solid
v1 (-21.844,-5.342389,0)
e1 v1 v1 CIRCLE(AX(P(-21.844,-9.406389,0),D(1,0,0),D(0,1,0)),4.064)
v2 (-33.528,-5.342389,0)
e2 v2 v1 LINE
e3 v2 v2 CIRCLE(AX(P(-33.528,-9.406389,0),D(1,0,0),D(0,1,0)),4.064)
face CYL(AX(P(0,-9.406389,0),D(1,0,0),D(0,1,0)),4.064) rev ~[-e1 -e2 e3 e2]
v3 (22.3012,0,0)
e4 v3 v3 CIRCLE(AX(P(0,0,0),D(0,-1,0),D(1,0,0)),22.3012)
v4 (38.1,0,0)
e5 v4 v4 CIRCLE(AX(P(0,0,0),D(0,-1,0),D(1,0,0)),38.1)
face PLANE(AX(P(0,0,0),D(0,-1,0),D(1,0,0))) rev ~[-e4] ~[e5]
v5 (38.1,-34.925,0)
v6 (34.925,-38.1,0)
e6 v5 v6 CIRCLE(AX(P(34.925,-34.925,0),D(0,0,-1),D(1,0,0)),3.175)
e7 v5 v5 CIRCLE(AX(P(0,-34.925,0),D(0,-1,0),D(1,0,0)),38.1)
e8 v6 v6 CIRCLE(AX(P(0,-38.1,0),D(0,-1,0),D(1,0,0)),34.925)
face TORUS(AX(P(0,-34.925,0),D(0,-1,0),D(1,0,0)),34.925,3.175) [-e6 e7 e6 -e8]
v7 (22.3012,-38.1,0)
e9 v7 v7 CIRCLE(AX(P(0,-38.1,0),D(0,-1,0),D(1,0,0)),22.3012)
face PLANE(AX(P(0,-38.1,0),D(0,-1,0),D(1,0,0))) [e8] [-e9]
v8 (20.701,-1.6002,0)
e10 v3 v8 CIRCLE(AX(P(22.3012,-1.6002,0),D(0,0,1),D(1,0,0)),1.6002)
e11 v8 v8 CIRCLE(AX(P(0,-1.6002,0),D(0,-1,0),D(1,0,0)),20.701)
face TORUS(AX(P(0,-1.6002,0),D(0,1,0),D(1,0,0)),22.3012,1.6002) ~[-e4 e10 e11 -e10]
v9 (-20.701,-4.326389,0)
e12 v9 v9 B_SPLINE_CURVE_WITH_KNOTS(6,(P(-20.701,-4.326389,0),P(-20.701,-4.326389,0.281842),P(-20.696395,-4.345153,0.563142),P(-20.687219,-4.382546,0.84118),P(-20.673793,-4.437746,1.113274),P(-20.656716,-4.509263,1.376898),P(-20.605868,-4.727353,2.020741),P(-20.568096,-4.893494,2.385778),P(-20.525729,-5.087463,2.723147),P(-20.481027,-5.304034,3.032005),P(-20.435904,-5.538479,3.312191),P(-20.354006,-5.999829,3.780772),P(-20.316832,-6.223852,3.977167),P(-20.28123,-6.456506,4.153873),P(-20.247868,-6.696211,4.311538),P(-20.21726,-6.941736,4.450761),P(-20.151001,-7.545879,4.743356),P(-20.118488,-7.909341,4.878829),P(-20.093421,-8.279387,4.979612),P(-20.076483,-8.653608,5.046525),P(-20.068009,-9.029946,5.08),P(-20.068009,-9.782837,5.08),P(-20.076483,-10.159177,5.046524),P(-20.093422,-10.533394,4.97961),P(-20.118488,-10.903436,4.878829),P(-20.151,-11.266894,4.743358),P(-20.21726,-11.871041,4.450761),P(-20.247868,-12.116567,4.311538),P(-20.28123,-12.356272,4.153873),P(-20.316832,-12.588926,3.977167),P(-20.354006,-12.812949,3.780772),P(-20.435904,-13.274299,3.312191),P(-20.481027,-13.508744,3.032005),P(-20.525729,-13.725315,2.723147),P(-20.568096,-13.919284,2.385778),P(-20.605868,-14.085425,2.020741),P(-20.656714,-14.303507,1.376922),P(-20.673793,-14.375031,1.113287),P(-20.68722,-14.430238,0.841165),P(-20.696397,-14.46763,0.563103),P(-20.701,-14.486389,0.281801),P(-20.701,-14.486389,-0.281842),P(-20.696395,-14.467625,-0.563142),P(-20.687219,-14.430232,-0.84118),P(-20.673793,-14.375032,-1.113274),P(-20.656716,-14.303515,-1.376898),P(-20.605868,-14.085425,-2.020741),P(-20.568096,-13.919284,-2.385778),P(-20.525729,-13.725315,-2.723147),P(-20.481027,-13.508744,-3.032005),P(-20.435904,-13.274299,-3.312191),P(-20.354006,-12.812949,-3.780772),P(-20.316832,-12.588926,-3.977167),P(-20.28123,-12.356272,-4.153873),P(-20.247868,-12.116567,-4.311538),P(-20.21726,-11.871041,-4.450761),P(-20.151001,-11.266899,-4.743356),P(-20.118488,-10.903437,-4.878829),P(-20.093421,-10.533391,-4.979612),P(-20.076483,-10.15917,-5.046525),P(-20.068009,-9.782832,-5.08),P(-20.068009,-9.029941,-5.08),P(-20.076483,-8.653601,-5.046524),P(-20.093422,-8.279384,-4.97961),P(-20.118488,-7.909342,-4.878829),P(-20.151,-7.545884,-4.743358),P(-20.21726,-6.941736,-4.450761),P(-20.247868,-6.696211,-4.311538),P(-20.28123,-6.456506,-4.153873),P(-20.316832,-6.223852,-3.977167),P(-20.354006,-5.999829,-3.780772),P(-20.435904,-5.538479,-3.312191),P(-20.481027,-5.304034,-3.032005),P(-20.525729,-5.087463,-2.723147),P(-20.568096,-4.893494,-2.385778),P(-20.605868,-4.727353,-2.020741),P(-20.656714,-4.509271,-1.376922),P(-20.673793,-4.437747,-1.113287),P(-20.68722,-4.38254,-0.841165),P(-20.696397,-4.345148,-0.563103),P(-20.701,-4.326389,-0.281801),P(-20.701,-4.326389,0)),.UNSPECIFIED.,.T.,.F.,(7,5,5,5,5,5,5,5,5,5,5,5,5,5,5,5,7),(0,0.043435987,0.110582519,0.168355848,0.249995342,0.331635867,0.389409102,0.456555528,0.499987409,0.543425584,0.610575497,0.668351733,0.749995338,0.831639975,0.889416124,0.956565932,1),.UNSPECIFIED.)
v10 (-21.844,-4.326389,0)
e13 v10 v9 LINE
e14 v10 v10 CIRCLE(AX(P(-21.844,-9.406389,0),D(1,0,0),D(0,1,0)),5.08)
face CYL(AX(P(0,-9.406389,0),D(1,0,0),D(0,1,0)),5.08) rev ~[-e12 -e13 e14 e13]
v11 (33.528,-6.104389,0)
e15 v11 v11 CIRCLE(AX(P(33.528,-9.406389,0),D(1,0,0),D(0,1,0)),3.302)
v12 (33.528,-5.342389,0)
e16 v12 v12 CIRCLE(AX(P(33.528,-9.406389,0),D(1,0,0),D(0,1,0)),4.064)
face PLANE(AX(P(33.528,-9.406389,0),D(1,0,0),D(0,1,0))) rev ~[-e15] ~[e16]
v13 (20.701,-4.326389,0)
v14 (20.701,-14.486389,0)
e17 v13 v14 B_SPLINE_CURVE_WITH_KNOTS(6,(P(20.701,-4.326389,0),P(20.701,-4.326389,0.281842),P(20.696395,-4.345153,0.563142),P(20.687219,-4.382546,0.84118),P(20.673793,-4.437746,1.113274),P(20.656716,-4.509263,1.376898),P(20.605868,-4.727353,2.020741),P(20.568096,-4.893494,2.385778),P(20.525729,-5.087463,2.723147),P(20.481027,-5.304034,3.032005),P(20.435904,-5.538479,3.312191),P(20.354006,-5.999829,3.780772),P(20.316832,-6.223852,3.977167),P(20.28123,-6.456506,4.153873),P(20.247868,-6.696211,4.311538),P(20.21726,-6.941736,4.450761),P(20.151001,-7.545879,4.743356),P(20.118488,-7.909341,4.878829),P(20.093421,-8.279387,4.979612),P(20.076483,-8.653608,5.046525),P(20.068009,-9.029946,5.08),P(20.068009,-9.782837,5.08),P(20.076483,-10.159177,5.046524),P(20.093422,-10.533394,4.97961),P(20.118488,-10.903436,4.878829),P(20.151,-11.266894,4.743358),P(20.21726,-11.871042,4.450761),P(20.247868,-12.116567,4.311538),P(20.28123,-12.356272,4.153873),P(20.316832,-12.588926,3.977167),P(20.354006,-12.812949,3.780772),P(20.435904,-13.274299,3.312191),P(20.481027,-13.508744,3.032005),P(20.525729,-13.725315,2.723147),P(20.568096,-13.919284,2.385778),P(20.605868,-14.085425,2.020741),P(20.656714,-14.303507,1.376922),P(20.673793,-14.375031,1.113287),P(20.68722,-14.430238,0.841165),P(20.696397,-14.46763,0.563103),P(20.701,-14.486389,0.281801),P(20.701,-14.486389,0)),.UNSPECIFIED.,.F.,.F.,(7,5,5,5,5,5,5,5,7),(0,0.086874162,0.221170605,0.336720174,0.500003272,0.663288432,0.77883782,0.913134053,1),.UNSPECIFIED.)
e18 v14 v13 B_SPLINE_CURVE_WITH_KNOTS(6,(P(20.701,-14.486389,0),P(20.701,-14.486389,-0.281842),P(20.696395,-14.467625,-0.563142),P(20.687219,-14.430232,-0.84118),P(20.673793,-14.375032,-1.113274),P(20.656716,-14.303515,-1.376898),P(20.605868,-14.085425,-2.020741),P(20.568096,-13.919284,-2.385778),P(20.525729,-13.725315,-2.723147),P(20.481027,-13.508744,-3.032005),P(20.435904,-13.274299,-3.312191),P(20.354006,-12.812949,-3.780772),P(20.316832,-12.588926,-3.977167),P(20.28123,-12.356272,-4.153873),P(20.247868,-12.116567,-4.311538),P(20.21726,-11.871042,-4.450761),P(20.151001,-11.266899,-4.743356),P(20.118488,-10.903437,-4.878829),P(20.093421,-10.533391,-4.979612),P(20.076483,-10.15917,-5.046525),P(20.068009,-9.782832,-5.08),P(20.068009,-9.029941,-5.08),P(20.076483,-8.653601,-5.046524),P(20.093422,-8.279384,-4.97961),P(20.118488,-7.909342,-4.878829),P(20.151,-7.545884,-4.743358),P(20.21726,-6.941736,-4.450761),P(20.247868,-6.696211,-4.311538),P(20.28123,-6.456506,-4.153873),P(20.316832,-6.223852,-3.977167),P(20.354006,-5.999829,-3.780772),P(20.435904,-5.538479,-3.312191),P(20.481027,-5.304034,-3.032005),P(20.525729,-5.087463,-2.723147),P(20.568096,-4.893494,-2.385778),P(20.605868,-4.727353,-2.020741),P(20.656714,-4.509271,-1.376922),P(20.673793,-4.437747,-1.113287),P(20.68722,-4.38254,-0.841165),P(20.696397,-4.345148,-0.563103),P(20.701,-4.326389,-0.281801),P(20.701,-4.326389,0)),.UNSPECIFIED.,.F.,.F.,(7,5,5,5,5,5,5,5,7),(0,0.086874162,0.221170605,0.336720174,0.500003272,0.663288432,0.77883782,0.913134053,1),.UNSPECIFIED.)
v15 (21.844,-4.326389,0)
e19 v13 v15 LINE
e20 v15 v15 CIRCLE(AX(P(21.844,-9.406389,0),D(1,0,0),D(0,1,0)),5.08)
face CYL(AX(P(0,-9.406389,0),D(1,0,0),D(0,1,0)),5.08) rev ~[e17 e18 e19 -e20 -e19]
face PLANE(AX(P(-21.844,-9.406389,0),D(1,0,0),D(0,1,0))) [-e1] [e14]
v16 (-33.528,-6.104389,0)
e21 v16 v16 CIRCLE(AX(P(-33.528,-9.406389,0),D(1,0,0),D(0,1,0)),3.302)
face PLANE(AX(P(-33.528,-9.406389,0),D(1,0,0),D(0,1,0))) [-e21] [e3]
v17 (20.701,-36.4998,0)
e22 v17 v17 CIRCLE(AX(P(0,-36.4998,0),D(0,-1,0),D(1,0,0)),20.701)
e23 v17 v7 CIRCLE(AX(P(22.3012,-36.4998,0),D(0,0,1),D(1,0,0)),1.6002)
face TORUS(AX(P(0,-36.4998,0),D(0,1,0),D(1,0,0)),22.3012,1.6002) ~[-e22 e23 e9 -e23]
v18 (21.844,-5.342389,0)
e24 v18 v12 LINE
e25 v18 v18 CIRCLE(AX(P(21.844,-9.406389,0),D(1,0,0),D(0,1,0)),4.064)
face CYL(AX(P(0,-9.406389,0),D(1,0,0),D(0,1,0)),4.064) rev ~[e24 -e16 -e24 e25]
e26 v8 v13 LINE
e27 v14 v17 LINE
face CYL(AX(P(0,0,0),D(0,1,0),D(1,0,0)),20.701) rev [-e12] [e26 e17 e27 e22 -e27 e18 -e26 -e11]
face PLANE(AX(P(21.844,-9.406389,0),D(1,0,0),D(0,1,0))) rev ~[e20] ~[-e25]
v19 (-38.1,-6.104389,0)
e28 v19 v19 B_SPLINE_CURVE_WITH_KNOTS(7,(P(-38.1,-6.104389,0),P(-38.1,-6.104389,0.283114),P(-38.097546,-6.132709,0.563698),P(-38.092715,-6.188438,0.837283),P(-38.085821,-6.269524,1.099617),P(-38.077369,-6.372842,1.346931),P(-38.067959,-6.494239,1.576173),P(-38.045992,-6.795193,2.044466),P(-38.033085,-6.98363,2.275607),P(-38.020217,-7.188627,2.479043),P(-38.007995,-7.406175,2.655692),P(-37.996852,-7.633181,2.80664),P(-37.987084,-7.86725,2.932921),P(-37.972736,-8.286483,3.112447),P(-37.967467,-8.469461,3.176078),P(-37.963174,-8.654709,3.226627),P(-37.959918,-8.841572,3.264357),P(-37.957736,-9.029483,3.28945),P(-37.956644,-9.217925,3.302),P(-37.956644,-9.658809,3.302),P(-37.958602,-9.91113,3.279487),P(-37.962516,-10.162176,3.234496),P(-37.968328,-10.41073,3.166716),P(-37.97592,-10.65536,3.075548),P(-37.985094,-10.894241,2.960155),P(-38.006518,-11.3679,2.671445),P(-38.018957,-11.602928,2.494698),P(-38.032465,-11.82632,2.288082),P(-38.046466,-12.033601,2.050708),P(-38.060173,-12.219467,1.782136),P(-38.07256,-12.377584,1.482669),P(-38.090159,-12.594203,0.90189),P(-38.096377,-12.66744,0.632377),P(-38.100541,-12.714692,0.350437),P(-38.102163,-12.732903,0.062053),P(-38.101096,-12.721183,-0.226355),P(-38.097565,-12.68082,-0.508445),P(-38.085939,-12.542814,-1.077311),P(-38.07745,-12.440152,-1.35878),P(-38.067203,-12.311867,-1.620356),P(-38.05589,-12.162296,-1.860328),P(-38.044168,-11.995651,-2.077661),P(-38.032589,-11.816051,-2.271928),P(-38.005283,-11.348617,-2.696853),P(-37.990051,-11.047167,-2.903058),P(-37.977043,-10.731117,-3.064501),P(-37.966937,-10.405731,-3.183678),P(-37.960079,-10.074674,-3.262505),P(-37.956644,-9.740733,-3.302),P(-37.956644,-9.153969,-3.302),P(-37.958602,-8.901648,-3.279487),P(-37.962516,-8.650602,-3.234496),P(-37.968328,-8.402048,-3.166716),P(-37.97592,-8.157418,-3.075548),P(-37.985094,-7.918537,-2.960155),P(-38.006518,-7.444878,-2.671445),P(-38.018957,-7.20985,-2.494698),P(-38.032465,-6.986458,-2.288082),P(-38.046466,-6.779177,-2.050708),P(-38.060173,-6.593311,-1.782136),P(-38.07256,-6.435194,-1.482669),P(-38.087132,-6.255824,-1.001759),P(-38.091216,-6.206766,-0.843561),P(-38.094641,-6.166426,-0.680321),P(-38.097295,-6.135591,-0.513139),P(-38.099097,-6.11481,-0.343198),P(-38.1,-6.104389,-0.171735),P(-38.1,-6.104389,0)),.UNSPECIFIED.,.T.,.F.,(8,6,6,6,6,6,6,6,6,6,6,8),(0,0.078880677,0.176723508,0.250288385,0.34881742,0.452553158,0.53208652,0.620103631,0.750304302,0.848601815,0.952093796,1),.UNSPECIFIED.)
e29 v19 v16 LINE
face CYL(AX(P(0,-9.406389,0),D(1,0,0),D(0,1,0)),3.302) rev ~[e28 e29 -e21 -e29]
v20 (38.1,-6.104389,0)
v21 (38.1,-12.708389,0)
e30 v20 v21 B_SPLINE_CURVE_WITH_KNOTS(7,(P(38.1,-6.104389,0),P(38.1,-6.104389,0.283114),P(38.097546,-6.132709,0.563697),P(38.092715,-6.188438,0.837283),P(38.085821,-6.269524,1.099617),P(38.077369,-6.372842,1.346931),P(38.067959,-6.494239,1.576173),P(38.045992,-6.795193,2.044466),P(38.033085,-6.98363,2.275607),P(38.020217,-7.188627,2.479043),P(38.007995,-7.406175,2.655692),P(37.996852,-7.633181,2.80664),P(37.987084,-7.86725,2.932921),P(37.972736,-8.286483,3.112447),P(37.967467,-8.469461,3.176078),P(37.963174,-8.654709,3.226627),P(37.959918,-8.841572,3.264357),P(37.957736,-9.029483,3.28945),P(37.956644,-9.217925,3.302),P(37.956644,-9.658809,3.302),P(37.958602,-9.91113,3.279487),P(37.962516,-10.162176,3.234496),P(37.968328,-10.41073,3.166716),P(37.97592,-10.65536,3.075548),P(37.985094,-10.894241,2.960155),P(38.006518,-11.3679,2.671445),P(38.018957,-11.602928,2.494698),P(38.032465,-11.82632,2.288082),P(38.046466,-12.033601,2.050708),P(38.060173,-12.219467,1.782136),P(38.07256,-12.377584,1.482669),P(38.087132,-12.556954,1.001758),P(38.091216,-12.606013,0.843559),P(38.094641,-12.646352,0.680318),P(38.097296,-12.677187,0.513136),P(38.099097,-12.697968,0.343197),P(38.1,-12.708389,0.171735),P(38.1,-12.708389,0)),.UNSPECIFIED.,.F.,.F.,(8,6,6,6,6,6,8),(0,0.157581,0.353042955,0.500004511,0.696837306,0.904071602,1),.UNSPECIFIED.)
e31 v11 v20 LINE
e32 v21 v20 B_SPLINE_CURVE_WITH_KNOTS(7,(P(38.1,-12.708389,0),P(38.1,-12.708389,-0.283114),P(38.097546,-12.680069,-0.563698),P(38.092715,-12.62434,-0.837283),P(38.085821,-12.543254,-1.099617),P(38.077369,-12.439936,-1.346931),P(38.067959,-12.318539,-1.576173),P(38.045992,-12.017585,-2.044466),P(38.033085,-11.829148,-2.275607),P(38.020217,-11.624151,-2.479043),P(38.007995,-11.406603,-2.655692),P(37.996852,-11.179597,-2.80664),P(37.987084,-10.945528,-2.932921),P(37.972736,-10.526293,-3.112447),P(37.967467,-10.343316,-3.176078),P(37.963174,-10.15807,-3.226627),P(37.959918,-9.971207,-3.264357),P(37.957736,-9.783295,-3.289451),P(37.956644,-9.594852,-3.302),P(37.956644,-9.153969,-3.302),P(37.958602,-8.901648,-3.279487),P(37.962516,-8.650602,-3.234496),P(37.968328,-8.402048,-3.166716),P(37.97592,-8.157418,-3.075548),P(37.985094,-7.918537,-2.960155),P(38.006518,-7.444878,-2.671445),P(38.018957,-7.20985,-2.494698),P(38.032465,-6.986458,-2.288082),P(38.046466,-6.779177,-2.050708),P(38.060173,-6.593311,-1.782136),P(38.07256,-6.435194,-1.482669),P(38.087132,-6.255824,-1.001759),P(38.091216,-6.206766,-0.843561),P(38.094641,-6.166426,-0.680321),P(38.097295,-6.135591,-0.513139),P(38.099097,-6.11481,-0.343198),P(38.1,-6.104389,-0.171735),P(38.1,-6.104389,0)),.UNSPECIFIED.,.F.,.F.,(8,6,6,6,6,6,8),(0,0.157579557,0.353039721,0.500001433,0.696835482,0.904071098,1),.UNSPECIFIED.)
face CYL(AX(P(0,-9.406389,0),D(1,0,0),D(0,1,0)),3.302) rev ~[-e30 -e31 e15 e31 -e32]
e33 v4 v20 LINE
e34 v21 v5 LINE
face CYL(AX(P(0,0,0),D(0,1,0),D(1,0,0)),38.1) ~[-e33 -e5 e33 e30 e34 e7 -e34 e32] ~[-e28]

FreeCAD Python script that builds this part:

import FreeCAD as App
import Part
import Sketcher
Q = App.Units.Quantity


def edges_at(feature, points):
    """Names of the edges that pass closest to the given points."""
    edges = feature.Shape.Edges
    near = lambda p: min(range(len(edges)), key=lambda i: edges[i].distToShape(Part.Vertex(*p))[0])
    return sorted({f"Edge{near(p) + 1}" for p in points})

doc = App.newDocument("Part")
body = doc.addObject("PartDesign::Body", "Body")

# Sketch on XZ plane
sketch1 = doc.addObject("Sketcher::SketchObject", "Sketch")
body.addObject(sketch1)
sketch1.AttachmentSupport = (doc.XZ_Plane, [""])
sketch1.MapMode = "FlatFace"
sketch1.addGeometry(Part.Circle(App.Vector(0, 0, 0), App.Vector(0, 0, 1), 38), False)
sketch1.addGeometry(Part.Circle(App.Vector(0, 0, 0), App.Vector(0, 0, 1), 21), False)
sketch1.addConstraint(Sketcher.Constraint("Coincident", 0, 3, -1, 1))
sketch1.addConstraint(Sketcher.Constraint("Coincident", 1, 3, -1, 1))
sketch1.addConstraint(Sketcher.Constraint("Diameter", 0, Q("3 in")))
sketch1.addConstraint(Sketcher.Constraint("Diameter", 1, Q("1.63 in")))
pad1 = doc.addObject("PartDesign::Pad", "Pad")
body.addObject(pad1)
pad1.Profile = sketch1
pad1.Length = Q("1.5 in")
doc.recompute()

fillet = doc.addObject("PartDesign::Fillet", "Fillet")
body.addObject(fillet)
fillet.Base = (pad1, edges_at(pad1, [(-38.1, -38.1, 0)]))
fillet.Radius = Q("0.125 in")

# Sketch on YZ plane
sketch2 = doc.addObject("Sketcher::SketchObject", "Sketch001")
body.addObject(sketch2)
sketch2.AttachmentSupport = (doc.YZ_Plane, [""])
sketch2.MapMode = "FlatFace"
sketch2.addGeometry(Part.Circle(App.Vector(-9.4, 0, 0), App.Vector(0, 0, 1), 3.3), False)
sketch2.addConstraint(Sketcher.Constraint("PointOnObject", 0, 3, -1))
sketch2.addConstraint(Sketcher.Constraint("Diameter", 0, Q("0.26 in")))
sketch2.addConstraint(Sketcher.Constraint("DistanceX", 0, 3, -1, 1, Q("9.406389 mm")))
pocket1 = doc.addObject("PartDesign::Pocket", "Pocket")
body.addObject(pocket1)
pocket1.Profile = sketch2
pocket1.Length = Q("4 in")
pocket1.Midplane = True

# Sketch on YZ plane
sketch3 = doc.addObject("Sketcher::SketchObject", "Sketch002")
body.addObject(sketch3)
sketch3.AttachmentSupport = (doc.YZ_Plane, [""])
sketch3.MapMode = "FlatFace"
sketch3.addGeometry(Part.Circle(App.Vector(-9.4, 0, 0), App.Vector(0, 0, 1), 4.1), False)
sketch3.addGeometry(Part.Circle(App.Vector(-9.4, 0, 0), App.Vector(0, 0, 1), 3.3), False)
sketch3.addConstraint(Sketcher.Constraint("Coincident", 1, 3, 0, 3))
sketch3.addConstraint(Sketcher.Constraint("PointOnObject", 0, 3, -1))
sketch3.addConstraint(Sketcher.Constraint("Diameter", 0, Q("0.32 in")))
sketch3.addConstraint(Sketcher.Constraint("Diameter", 1, Q("0.26 in")))
sketch3.addConstraint(Sketcher.Constraint("DistanceX", 0, 3, -1, 1, Q("9.406389 mm")))
pocket2 = doc.addObject("PartDesign::Pocket", "Pocket001")
body.addObject(pocket2)
pocket2.Profile = sketch3
pocket2.Length = Q("2.64 in")
pocket2.Midplane = True

# Sketch on YZ plane
sketch4 = doc.addObject("Sketcher::SketchObject", "Sketch003")
body.addObject(sketch4)
sketch4.AttachmentSupport = (doc.YZ_Plane, [""])
sketch4.MapMode = "FlatFace"
sketch4.addGeometry(Part.Circle(App.Vector(-9.4, 0, 0), App.Vector(0, 0, 1), 5.1), False)
sketch4.addGeometry(Part.Circle(App.Vector(-9.4, 0, 0), App.Vector(0, 0, 1), 4.1), False)
sketch4.addConstraint(Sketcher.Constraint("Coincident", 1, 3, 0, 3))
sketch4.addConstraint(Sketcher.Constraint("PointOnObject", 0, 3, -1))
sketch4.addConstraint(Sketcher.Constraint("Diameter", 0, Q("0.4 in")))
sketch4.addConstraint(Sketcher.Constraint("Diameter", 1, Q("0.32 in")))
sketch4.addConstraint(Sketcher.Constraint("DistanceX", 0, 3, -1, 1, Q("9.406389 mm")))
pocket3 = doc.addObject("PartDesign::Pocket", "Pocket002")
body.addObject(pocket3)
pocket3.Profile = sketch4
pocket3.Length = Q("1.72 in")
pocket3.Midplane = True
doc.recompute()

fillet2 = doc.addObject("PartDesign::Fillet", "Fillet001")
body.addObject(fillet2)
fillet2.Base = (pocket3, edges_at(pocket3, [(-20.701, -38.1, 0), (-20.701, 0, 0)]))
fillet2.Radius = Q("0.063 in")

doc.recompute()
